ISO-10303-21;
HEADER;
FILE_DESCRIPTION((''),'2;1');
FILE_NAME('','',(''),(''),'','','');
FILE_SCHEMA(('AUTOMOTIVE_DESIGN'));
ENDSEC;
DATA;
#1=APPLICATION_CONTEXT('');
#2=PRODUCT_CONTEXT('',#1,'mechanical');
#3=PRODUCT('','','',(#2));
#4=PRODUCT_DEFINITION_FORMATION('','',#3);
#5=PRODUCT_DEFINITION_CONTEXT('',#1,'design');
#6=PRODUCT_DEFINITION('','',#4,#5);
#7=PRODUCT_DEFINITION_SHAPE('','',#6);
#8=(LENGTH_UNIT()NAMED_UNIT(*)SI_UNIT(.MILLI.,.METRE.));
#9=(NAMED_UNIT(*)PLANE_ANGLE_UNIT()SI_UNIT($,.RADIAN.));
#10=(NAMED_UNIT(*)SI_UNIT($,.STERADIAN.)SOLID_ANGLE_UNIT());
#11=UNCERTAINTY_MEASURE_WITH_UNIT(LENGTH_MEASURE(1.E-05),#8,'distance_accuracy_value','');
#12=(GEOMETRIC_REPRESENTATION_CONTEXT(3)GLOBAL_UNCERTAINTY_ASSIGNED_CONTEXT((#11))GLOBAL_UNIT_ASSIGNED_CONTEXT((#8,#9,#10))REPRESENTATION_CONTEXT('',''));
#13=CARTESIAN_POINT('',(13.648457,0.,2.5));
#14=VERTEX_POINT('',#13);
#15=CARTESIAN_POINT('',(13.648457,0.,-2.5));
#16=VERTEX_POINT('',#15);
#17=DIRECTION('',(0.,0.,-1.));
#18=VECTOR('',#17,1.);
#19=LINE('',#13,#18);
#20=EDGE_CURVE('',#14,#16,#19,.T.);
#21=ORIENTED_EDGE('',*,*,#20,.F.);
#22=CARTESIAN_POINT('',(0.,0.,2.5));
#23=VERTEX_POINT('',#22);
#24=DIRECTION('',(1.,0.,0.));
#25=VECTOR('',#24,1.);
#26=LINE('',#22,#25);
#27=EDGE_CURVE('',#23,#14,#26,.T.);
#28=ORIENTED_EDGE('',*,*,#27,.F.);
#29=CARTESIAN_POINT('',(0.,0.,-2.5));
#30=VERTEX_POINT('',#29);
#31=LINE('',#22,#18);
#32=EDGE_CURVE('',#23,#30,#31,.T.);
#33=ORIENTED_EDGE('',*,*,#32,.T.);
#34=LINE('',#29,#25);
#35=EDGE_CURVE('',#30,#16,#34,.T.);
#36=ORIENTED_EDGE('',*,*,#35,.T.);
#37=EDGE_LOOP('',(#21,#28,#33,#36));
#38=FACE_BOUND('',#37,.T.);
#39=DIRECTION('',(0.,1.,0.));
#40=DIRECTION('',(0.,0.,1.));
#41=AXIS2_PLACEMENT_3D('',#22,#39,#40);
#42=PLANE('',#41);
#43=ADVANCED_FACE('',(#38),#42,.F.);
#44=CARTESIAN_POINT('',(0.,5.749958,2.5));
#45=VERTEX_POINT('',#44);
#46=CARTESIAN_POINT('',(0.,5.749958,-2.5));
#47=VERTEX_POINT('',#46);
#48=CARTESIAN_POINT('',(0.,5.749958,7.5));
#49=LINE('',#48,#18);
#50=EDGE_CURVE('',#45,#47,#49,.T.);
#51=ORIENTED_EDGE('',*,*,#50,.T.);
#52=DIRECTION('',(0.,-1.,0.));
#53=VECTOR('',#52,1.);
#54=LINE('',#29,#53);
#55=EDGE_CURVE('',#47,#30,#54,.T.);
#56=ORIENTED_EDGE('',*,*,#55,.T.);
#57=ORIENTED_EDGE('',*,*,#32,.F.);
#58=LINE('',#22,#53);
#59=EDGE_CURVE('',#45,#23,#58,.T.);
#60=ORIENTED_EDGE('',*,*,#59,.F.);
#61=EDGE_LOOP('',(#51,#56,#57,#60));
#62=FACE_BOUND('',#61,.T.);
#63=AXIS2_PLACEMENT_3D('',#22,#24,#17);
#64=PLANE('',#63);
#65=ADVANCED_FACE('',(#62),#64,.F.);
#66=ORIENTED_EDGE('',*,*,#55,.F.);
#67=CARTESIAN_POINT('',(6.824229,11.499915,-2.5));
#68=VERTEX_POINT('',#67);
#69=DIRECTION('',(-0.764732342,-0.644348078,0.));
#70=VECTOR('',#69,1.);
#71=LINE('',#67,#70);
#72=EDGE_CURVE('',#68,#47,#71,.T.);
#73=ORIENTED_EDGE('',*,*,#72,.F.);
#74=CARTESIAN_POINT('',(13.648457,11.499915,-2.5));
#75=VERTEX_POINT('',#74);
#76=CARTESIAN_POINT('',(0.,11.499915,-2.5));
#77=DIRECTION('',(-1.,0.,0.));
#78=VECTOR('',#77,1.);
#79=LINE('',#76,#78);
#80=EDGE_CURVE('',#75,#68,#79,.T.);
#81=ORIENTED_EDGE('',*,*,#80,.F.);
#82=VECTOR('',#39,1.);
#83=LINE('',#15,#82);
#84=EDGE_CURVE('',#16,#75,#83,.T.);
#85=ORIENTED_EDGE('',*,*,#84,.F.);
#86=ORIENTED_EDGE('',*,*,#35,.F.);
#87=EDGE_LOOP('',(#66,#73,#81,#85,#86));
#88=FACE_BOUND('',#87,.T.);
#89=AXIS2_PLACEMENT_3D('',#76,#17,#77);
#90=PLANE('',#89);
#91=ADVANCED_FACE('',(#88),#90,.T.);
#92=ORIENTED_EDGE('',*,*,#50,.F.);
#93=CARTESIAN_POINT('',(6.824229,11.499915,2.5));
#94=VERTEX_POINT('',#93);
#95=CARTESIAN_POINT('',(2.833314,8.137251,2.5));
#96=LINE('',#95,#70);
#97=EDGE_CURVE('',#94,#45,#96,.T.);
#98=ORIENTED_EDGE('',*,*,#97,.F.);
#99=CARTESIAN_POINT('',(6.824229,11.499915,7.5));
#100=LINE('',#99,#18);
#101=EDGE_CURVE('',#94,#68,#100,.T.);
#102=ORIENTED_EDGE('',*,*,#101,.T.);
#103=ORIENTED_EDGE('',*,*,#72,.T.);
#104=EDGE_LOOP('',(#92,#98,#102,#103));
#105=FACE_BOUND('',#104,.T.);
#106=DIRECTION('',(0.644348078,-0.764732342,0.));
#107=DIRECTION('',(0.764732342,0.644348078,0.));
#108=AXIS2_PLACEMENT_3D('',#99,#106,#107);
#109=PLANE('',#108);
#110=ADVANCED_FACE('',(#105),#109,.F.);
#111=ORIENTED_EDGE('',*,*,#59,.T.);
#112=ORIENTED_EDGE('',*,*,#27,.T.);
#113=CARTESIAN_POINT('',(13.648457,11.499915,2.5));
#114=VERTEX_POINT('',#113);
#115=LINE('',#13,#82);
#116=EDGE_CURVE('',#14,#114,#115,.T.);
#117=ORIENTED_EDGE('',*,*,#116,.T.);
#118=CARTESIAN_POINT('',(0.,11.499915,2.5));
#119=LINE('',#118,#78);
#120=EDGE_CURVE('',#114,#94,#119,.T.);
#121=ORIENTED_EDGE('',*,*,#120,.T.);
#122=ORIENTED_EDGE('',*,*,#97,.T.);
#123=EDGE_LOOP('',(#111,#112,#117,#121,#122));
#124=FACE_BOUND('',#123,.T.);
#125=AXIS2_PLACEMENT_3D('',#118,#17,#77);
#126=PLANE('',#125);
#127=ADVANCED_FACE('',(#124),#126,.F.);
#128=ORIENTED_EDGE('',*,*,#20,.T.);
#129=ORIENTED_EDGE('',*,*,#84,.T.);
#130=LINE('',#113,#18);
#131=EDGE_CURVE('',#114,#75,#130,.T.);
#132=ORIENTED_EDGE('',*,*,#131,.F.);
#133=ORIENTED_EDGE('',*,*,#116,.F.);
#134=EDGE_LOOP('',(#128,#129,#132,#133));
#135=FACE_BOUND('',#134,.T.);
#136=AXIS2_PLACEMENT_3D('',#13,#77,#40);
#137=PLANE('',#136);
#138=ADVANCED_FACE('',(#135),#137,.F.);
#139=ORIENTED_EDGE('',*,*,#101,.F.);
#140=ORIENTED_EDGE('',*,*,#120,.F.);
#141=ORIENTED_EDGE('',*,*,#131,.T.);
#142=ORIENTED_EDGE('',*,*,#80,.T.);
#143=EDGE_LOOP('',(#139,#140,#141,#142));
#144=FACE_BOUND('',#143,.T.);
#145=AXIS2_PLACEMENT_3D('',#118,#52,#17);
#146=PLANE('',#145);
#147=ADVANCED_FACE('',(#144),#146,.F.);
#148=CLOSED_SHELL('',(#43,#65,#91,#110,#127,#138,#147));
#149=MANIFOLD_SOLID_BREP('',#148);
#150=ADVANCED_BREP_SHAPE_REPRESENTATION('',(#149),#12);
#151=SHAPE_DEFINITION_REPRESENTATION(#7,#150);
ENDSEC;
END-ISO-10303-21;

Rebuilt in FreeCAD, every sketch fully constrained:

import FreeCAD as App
import Part
import Sketcher
from FreeCAD import Vector

doc = App.newDocument("Part")
params = doc.addObject("Spreadsheet::Sheet", "Params")
for row, (alias, value) in enumerate([
    ("pad1_length", "5 mm"),
    ("pocket1_length", "10 mm"),
], start=1):
    params.set(f"A{row}", alias)
    params.set(f"B{row}", "=" + value)
    params.setAlias(f"B{row}", alias)

body = doc.addObject("PartDesign::Body", "Body")

# Sketch on XY plane
sketch1 = body.newObject("Sketcher::SketchObject", "Sketch")
sketch1.AttachmentSupport = (doc.getObject("XY_Plane"), [""])
sketch1.MapMode = "FlatFace"
sketch1.addGeometry(Part.LineSegment(Vector(0, 11, 0), Vector(0, 0, 0)), False)
sketch1.addGeometry(Part.LineSegment(Vector(0, 0, 0), Vector(14, 0, 0)), False)
sketch1.addGeometry(Part.LineSegment(Vector(14, 0, 0), Vector(14, 11, 0)), False)
sketch1.addGeometry(Part.LineSegment(Vector(14, 11, 0), Vector(0, 11, 0)), False)
sketch1.addConstraint(Sketcher.Constraint("Coincident", 0, 2, 1, 1))
sketch1.addConstraint(Sketcher.Constraint("Coincident", 1, 2, 2, 1))
sketch1.addConstraint(Sketcher.Constraint("Coincident", 2, 2, 3, 1))
sketch1.addConstraint(Sketcher.Constraint("Coincident", 3, 2, 0, 1))
sketch1.addConstraint(Sketcher.Constraint("Vertical", 0))
sketch1.addConstraint(Sketcher.Constraint("Horizontal", 1))
sketch1.addConstraint(Sketcher.Constraint("Vertical", 2))
sketch1.addConstraint(Sketcher.Constraint("Horizontal", 3))
sketch1.addConstraint(Sketcher.Constraint("Coincident", 0, 2, -1, 1))
sketch1.addConstraint(Sketcher.Constraint("DistanceX", 1, 1, 1, 2, 13.648457))
sketch1.addConstraint(Sketcher.Constraint("DistanceY", 0, 2, 0, 1, 11.499915))
pad1 = body.newObject("PartDesign::Pad", "Pad")
pad1.Profile = sketch1
pad1.setExpression("Length", "Params.pad1_length")
pad1.Midplane = True

# Sketch on XY plane
sketch2 = body.newObject("Sketcher::SketchObject", "Sketch001")
sketch2.AttachmentSupport = (doc.getObject("XY_Plane"), [""])
sketch2.MapMode = "FlatFace"
sketch2.AttachmentOffset = App.Placement(Vector(0, 0, -2.5), App.Rotation())
sketch2.addGeometry(Part.LineSegment(Vector(7, 11, 0), Vector(0, 6, 0)), False)
sketch2.addGeometry(Part.LineSegment(Vector(0, 6, 0), Vector(0, 11, 0)), False)
sketch2.addGeometry(Part.LineSegment(Vector(0, 11, 0), Vector(7, 11, 0)), False)
sketch2.addConstraint(Sketcher.Constraint("Coincident", 0, 2, 1, 1))
sketch2.addConstraint(Sketcher.Constraint("Coincident", 1, 2, 2, 1))
sketch2.addConstraint(Sketcher.Constraint("Coincident", 2, 2, 0, 1))
sketch2.addConstraint(Sketcher.Constraint("Vertical", 1))
sketch2.addConstraint(Sketcher.Constraint("Horizontal", 2))
sketch2.addConstraint(Sketcher.Constraint("PointOnObject", 0, 2, -2))
sketch2.addConstraint(Sketcher.Constraint("DistanceX", 2, 1, 2, 2, 6.824229))
sketch2.addConstraint(Sketcher.Constraint("DistanceY", 1, 1, 1, 2, 5.749958))
sketch2.addConstraint(Sketcher.Constraint("DistanceY", -1, 1, 0, 2, 5.749958))
pocket1 = body.newObject("PartDesign::Pocket", "Pocket")
pocket1.Profile = sketch2
pocket1.setExpression("Length", "Params.pocket1_length")
pocket1.Reversed = True

doc.recompute()
